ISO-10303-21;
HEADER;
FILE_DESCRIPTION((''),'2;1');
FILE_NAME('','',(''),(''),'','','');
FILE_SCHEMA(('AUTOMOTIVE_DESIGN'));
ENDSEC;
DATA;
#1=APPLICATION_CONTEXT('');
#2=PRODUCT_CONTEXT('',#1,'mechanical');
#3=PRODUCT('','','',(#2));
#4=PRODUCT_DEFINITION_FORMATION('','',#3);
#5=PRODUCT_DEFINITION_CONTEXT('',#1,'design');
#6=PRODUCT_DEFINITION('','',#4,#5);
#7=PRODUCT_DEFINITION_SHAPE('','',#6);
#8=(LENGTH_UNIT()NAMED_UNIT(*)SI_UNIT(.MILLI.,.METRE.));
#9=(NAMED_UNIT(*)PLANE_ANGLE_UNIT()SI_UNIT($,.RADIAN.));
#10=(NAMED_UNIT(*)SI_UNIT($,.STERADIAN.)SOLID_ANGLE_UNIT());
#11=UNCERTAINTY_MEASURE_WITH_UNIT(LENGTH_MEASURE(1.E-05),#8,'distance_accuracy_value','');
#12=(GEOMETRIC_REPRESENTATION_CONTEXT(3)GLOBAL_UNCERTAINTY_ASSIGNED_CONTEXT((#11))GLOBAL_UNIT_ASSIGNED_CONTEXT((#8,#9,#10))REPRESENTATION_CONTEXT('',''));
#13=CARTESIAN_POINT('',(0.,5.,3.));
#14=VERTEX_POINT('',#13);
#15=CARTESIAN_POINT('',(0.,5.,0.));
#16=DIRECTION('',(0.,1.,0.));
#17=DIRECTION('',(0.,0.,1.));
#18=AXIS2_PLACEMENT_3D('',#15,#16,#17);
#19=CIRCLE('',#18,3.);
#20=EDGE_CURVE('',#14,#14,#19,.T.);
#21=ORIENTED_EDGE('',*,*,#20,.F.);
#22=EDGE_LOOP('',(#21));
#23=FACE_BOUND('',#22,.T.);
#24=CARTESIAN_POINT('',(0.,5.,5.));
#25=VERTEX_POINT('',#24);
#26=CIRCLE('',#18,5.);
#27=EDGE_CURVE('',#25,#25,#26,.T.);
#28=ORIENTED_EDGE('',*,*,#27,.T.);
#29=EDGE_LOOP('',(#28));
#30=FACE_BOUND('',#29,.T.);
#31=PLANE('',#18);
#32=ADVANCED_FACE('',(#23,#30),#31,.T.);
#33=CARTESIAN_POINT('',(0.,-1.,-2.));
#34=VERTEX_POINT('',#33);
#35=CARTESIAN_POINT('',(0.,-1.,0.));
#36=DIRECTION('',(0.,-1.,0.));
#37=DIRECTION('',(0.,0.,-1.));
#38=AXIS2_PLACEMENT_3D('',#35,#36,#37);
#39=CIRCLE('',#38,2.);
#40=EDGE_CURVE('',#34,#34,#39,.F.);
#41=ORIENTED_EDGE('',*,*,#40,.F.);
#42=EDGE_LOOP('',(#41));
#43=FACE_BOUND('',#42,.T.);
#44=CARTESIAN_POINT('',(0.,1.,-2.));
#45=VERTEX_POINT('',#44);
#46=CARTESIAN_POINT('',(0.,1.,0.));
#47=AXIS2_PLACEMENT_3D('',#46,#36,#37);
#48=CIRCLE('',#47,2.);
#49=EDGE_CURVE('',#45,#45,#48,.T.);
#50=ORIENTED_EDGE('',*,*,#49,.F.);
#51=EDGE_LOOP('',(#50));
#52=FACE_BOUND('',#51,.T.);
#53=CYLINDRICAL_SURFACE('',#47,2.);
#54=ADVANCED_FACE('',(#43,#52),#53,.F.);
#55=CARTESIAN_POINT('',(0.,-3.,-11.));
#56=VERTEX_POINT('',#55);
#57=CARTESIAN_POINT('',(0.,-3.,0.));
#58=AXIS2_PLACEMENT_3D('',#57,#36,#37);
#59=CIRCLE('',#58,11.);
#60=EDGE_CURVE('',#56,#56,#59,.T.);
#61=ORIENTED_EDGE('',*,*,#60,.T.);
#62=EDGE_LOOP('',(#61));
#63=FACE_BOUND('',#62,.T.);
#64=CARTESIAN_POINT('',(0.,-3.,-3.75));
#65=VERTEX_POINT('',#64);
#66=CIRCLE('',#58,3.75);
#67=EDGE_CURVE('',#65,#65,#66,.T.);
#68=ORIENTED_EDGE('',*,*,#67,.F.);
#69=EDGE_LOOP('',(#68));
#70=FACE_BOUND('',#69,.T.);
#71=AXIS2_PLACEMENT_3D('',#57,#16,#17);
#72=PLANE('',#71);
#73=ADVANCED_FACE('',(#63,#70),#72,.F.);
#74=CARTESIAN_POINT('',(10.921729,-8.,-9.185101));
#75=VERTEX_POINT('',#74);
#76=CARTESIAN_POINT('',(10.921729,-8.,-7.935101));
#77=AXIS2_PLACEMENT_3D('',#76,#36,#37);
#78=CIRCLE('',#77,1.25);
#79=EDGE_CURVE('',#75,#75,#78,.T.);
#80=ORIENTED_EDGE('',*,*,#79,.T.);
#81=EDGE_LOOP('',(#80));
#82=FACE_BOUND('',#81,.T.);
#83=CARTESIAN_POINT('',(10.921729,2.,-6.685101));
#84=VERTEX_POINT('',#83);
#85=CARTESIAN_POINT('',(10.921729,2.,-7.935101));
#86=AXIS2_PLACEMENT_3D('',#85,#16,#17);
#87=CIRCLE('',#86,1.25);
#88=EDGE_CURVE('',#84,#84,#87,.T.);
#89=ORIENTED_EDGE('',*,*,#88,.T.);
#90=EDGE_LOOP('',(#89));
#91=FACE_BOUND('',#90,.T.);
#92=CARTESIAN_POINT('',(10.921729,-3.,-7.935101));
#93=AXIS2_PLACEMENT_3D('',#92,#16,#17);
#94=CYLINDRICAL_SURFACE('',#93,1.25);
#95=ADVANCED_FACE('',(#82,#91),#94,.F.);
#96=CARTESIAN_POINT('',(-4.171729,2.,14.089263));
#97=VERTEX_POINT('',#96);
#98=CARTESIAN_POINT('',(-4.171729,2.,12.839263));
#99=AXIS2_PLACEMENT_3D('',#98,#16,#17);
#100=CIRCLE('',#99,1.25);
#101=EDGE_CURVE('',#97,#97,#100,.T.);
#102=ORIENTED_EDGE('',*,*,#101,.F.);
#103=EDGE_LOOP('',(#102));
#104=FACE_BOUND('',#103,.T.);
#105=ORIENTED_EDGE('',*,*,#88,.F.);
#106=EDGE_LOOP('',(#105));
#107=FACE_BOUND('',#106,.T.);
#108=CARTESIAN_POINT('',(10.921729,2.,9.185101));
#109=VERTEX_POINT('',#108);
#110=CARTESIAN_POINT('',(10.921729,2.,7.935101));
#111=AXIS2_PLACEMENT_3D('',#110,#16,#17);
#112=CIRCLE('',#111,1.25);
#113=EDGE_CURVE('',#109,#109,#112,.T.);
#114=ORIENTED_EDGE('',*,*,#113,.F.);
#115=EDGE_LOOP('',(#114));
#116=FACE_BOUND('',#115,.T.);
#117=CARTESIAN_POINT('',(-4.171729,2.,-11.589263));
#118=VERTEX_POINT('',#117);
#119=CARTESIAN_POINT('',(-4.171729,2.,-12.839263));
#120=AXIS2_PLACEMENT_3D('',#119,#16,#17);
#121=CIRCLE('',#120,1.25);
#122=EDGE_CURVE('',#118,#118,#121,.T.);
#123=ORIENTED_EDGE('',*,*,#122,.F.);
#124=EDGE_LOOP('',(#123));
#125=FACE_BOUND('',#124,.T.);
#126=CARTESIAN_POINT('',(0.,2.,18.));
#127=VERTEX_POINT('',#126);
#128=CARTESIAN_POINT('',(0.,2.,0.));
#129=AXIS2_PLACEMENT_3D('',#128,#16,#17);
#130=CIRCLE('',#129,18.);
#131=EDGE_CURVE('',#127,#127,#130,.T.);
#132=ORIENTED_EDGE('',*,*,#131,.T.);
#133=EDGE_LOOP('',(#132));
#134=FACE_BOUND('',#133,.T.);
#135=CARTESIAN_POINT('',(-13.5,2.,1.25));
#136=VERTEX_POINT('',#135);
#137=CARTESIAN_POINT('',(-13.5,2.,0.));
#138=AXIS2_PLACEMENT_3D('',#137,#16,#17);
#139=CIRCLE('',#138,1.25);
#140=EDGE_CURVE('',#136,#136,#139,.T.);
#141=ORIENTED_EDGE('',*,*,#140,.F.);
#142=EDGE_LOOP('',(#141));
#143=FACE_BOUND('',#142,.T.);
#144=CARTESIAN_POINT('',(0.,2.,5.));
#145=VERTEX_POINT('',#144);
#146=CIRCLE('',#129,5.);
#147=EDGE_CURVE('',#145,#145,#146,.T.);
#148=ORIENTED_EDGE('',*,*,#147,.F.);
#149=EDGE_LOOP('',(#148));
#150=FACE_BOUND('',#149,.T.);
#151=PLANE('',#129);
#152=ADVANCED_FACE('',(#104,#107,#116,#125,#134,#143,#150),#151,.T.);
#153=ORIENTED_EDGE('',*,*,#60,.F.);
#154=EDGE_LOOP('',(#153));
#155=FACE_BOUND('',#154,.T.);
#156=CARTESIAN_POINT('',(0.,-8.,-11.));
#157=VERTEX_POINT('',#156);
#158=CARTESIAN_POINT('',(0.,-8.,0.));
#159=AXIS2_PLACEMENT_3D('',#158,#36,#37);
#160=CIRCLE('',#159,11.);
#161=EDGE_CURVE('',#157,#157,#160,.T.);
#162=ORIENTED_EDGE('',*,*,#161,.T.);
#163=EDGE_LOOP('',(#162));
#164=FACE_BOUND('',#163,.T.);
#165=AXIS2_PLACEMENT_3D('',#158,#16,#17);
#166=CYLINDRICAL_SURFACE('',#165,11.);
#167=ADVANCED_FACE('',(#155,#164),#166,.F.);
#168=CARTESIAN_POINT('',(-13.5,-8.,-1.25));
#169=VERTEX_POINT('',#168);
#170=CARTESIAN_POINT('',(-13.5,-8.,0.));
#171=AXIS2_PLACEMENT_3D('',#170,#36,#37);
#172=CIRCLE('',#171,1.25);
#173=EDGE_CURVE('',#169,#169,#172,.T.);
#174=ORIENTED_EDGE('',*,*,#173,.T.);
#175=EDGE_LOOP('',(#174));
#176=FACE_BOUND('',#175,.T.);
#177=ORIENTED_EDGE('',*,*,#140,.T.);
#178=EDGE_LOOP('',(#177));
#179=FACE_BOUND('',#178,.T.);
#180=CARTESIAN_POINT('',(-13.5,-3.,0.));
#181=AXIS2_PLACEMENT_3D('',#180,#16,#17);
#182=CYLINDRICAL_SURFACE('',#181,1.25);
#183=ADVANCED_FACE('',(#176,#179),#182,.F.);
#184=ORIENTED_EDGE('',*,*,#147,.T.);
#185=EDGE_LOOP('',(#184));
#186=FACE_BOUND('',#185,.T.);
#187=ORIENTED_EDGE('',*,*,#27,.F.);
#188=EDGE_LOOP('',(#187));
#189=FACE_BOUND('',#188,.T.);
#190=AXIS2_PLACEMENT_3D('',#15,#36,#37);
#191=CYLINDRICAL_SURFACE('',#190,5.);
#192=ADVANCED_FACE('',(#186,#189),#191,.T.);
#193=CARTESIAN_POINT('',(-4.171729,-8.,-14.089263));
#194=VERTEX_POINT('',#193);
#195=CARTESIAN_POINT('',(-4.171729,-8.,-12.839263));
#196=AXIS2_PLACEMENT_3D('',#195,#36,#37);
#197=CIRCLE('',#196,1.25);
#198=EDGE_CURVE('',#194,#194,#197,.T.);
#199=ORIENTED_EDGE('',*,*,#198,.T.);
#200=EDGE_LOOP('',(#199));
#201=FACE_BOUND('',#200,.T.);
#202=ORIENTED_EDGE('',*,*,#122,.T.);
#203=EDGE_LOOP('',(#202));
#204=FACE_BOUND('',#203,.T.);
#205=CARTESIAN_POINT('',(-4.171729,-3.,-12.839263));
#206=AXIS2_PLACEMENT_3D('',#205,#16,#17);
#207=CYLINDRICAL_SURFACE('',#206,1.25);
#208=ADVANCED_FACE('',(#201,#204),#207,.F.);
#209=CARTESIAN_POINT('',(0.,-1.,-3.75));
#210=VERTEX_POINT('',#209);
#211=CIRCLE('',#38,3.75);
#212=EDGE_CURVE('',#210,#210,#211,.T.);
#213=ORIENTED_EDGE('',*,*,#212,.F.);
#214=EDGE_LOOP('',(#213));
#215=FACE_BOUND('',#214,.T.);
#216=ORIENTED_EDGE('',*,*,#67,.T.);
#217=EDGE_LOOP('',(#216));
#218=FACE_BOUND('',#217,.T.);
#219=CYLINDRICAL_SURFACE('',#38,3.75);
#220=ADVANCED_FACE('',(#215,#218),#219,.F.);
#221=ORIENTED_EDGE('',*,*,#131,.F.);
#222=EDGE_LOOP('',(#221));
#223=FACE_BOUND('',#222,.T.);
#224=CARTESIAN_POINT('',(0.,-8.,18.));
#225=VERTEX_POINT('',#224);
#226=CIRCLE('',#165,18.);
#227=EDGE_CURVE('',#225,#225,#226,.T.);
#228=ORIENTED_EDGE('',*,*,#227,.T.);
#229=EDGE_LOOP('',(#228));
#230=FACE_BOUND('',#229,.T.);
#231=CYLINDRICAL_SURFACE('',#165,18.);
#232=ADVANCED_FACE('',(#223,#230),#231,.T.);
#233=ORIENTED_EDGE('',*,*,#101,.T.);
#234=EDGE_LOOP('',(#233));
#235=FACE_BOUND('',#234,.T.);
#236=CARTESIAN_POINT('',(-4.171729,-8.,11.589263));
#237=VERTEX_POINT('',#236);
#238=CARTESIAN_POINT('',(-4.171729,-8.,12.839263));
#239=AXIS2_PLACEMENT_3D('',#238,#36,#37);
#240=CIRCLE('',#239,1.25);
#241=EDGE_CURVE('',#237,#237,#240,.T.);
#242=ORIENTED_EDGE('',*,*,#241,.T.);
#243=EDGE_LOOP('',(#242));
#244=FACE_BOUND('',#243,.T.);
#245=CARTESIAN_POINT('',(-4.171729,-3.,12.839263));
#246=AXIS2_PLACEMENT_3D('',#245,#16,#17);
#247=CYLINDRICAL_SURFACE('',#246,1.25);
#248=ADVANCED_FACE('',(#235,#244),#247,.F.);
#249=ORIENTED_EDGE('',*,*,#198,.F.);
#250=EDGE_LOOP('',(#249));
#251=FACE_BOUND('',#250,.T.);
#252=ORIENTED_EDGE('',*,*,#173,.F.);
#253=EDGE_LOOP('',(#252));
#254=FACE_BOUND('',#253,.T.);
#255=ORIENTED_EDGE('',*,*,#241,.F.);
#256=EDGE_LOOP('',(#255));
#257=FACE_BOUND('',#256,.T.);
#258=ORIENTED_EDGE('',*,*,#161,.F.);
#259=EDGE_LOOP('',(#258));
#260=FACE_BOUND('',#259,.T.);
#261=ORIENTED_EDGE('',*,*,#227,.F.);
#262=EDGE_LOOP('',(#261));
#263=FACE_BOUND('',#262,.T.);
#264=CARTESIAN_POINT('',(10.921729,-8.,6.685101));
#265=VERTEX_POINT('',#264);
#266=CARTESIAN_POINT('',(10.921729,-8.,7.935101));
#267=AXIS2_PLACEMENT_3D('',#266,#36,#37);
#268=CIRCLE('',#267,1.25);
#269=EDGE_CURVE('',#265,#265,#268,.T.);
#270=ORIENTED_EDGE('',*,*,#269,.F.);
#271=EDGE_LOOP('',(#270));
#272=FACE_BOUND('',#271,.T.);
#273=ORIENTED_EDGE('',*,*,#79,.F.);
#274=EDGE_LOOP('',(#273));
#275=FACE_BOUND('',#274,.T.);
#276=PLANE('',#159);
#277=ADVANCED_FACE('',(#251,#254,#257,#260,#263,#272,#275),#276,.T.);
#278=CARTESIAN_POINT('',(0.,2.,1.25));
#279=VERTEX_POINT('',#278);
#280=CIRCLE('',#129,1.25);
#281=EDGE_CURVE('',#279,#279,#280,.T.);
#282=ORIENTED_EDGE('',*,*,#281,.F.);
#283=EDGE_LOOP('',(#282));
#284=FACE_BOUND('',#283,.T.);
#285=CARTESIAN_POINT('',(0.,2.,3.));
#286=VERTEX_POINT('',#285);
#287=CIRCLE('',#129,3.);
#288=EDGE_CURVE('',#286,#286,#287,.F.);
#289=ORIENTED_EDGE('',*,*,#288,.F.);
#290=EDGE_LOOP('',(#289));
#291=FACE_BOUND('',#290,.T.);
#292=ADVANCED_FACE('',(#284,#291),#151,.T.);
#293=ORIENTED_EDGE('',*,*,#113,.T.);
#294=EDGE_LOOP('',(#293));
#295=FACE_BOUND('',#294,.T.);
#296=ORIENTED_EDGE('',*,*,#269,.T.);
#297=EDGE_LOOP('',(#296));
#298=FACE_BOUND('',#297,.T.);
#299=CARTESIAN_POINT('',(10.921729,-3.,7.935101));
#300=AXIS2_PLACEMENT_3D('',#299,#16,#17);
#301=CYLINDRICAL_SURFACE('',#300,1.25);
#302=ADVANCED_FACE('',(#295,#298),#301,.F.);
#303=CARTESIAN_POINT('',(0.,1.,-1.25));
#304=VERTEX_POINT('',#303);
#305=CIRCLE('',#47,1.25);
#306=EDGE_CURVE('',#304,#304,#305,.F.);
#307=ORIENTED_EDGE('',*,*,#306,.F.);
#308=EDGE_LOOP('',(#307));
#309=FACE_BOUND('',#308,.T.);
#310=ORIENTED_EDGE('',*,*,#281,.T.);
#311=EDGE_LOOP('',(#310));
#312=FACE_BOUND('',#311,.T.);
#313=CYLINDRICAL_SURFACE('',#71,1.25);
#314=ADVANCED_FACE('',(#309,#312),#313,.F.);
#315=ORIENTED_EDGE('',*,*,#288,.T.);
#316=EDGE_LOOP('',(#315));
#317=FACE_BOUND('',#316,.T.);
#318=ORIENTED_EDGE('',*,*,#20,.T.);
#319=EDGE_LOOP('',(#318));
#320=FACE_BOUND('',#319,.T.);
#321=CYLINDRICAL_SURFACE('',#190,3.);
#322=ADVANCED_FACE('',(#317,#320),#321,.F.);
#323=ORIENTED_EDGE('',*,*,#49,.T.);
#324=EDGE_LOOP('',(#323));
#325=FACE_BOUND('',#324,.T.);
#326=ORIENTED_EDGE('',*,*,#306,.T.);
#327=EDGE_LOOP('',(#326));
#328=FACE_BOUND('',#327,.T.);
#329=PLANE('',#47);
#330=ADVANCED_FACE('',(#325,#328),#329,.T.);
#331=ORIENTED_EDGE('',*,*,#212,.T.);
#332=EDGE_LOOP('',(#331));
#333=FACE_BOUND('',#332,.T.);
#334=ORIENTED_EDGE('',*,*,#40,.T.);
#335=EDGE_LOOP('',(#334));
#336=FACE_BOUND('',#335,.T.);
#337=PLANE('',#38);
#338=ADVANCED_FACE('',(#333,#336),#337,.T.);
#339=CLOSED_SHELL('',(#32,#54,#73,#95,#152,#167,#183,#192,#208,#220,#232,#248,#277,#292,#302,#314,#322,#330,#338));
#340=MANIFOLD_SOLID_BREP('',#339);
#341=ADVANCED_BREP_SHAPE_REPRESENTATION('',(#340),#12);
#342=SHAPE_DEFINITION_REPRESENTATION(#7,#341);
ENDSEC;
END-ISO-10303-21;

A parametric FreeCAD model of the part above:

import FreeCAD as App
import Part
import Sketcher

V = App.Vector
Q = App.Units.Quantity

doc = App.newDocument("Part")
params = doc.addObject("Spreadsheet::Sheet", "Params")
for row, (alias, value) in enumerate([
    ("sketch1_diameter", "32 mm"),
    ("sketch1_diameter2", "2.5 mm"),
    ("pad1_length", "2 mm"),
    ("pad1_length2", "3 mm"),
    ("sketch2_diameter", "10 mm"),
    ("sketch2_diameter2", "6 mm"),
    ("pad2_length", "3 mm"),
    ("sketch3_diameter", "5.5 mm"),
    ("pocket1_length", "1 mm"),
    ("sketch4_diameter", "32 mm"),
    ("sketch4_diameter2", "22 mm"),
    ("sketch4_diameter3", "2.5 mm"),
    ("pad3_length", "5 mm"),
    ("sketch5_diameter", "36 mm"),
    ("sketch5_diameter2", "32 mm"),
    ("pad4_length", "10 mm"),
    ("sketch6_diameter", "4 mm"),
    ("pocket2_length", "3 mm"),
    ("sketch7_diameter", "7.5 mm"),
    ("pocket3_length", "2 mm"),
], start=1):
    params.set(f"A{row}", alias)
    params.set(f"B{row}", "=" + value)
    params.setAlias(f"B{row}", alias)

body = doc.addObject("PartDesign::Body", "Body")

sketch1 = doc.addObject("Sketcher::SketchObject", "Sketch")
body.addObject(sketch1)
sketch1.AttachmentSupport = (doc.XZ_Plane, [""])
sketch1.MapMode = "FlatFace"
sketch1.addGeometry([
    Part.Circle(V(0, 0, 0), V(0, 0, 1), 16),
    Part.Circle(V(-4.171729, -12.839263, 0), V(0, 0, 1), 1.25),
    Part.Circle(V(-13.5, 0, 0), V(0, 0, 1), 1.25),
    Part.Circle(V(-4.171729, 12.839263, 0), V(0, 0, 1), 1.25),
    Part.Circle(V(0, 0, 0), V(0, 0, 1), 1.25),
    Part.Circle(V(10.921729, -7.935101, 0), V(0, 0, 1), 1.25),
    Part.Circle(V(10.921729, 7.935101, 0), V(0, 0, 1), 1.25),
], False)
sketch1.addConstraint([
    Sketcher.Constraint("Coincident", 0, 3, -1, 1),
    Sketcher.Constraint("Coincident", 4, 3, -1, 1),
    Sketcher.Constraint("Equal", 1, 2),
    Sketcher.Constraint("Equal", 2, 3),
    Sketcher.Constraint("Equal", 3, 4),
    Sketcher.Constraint("Equal", 4, 5),
    Sketcher.Constraint("Equal", 5, 6),
    Sketcher.Constraint("Symmetric", 1, 3, 3, 3, -1),
    Sketcher.Constraint("Symmetric", 5, 3, 6, 3, -1),
    Sketcher.Constraint("PointOnObject", 2, 3, -1),
    Sketcher.Constraint("Diameter", 0, Q("32 mm")),
    Sketcher.Constraint("Diameter", 1, Q("2.5 mm")),
    Sketcher.Constraint("DistanceX", 2, 3, -1, 1, Q("13.5 mm")),
    Sketcher.Constraint("DistanceY", 5, 3, -1, 1, Q("7.935101 mm")),
    Sketcher.Constraint("DistanceX", 1, 3, -1, 1, Q("4.171729 mm")),
    Sketcher.Constraint("DistanceX", -1, 1, 5, 3, Q("10.921729 mm")),
    Sketcher.Constraint("DistanceY", 1, 3, -1, 1, Q("12.839263 mm")),
])
sketch1.setExpression("Constraints[10]", "Params.sketch1_diameter")
sketch1.setExpression("Constraints[11]", "Params.sketch1_diameter2")
pad1 = doc.addObject("PartDesign::Pad", "Pad")
body.addObject(pad1)
pad1.Profile = sketch1
pad1.Type = "TwoLengths"
pad1.setExpression("Length", "Params.pad1_length")
pad1.setExpression("Length2", "Params.pad1_length2")
pad1.Reversed = True

sketch2 = doc.addObject("Sketcher::SketchObject", "Sketch001")
body.addObject(sketch2)
sketch2.AttachmentSupport = (doc.XZ_Plane, [""])
sketch2.MapMode = "FlatFace"
sketch2.AttachmentOffset = App.Placement(V(0, 0, -2), App.Rotation())
sketch2.addGeometry([
    Part.Circle(V(0, 0, 0), V(0, 0, 1), 5),
    Part.Circle(V(0, 0, 0), V(0, 0, 1), 3),
], False)
sketch2.addConstraint([
    Sketcher.Constraint("Coincident", 0, 3, -1, 1),
    Sketcher.Constraint("Coincident", 1, 3, -1, 1),
    Sketcher.Constraint("Diameter", 0, Q("10 mm")),
    Sketcher.Constraint("Diameter", 1, Q("6 mm")),
])
sketch2.setExpression("Constraints[2]", "Params.sketch2_diameter")
sketch2.setExpression("Constraints[3]", "Params.sketch2_diameter2")
pad2 = doc.addObject("PartDesign::Pad", "Pad001")
body.addObject(pad2)
pad2.Profile = sketch2
pad2.setExpression("Length", "Params.pad2_length")
pad2.Reversed = True

sketch3 = doc.addObject("Sketcher::SketchObject", "Sketch002")
body.addObject(sketch3)
sketch3.AttachmentSupport = (doc.XZ_Plane, [""])
sketch3.MapMode = "FlatFace"
sketch3.AttachmentOffset = App.Placement(V(0, 0, 3), App.Rotation())
sketch3.addGeometry(Part.Circle(V(0, 0, 0), V(0, 0, 1), 2.75), False)
sketch3.addConstraint([
    Sketcher.Constraint("Coincident", 0, 3, -1, 1),
    Sketcher.Constraint("Diameter", 0, Q("5.5 mm")),
])
sketch3.setExpression("Constraints[1]", "Params.sketch3_diameter")
pocket1 = doc.addObject("PartDesign::Pocket", "Pocket")
body.addObject(pocket1)
pocket1.Profile = sketch3
pocket1.setExpression("Length", "Params.pocket1_length")

sketch4 = doc.addObject("Sketcher::SketchObject", "Sketch003")
body.addObject(sketch4)
sketch4.AttachmentSupport = (doc.XZ_Plane, [""])
sketch4.MapMode = "FlatFace"
sketch4.AttachmentOffset = App.Placement(V(0, 0, 3), App.Rotation())
sketch4.addGeometry([
    Part.Circle(V(0, 0, 0), V(0, 0, 1), 16),
    Part.Circle(V(10.921729, -7.935101, 0), V(0, 0, 1), 1.25),
    Part.Circle(V(10.921729, 7.935101, 0), V(0, 0, 1), 1.25),
    Part.Circle(V(0, 0, 0), V(0, 0, 1), 11),
    Part.Circle(V(-4.171729, -12.839263, 0), V(0, 0, 1), 1.25),
    Part.Circle(V(-13.5, 0, 0), V(0, 0, 1), 1.25),
    Part.Circle(V(-4.171729, 12.839263, 0), V(0, 0, 1), 1.25),
], False)
sketch4.addConstraint([
    Sketcher.Constraint("Coincident", 0, 3, -1, 1),
    Sketcher.Constraint("Coincident", 3, 3, -1, 1),
    Sketcher.Constraint("Equal", 1, 2),
    Sketcher.Constraint("Equal", 2, 4),
    Sketcher.Constraint("Equal", 4, 5),
    Sketcher.Constraint("Equal", 5, 6),
    Sketcher.Constraint("Symmetric", 1, 3, 2, 3, -1),
    Sketcher.Constraint("Symmetric", 4, 3, 6, 3, -1),
    Sketcher.Constraint("PointOnObject", 5, 3, -1),
    Sketcher.Constraint("Diameter", 0, Q("32 mm")),
    Sketcher.Constraint("Diameter", 3, Q("22 mm")),
    Sketcher.Constraint("Diameter", 1, Q("2.5 mm")),
    Sketcher.Constraint("DistanceX", 5, 3, -1, 1, Q("13.5 mm")),
    Sketcher.Constraint("DistanceY", 1, 3, -1, 1, Q("7.935101 mm")),
    Sketcher.Constraint("DistanceX", -1, 1, 1, 3, Q("10.921729 mm")),
    Sketcher.Constraint("DistanceX", 4, 3, -1, 1, Q("4.171729 mm")),
    Sketcher.Constraint("DistanceY", 4, 3, -1, 1, Q("12.839263 mm")),
])
sketch4.setExpression("Constraints[9]", "Params.sketch4_diameter")
sketch4.setExpression("Constraints[10]", "Params.sketch4_diameter2")
sketch4.setExpression("Constraints[11]", "Params.sketch4_diameter3")
pad3 = doc.addObject("PartDesign::Pad", "Pad002")
body.addObject(pad3)
pad3.Profile = sketch4
pad3.setExpression("Length", "Params.pad3_length")

sketch5 = doc.addObject("Sketcher::SketchObject", "Sketch004")
body.addObject(sketch5)
sketch5.AttachmentSupport = (doc.XZ_Plane, [""])
sketch5.MapMode = "FlatFace"
sketch5.AttachmentOffset = App.Placement(V(0, 0, -2), App.Rotation())
sketch5.addGeometry([
    Part.Circle(V(0, 0, 0), V(0, 0, 1), 18),
    Part.Circle(V(0, 0, 0), V(0, 0, 1), 16),
], False)
sketch5.addConstraint([
    Sketcher.Constraint("Coincident", 0, 3, -1, 1),
    Sketcher.Constraint("Coincident", 1, 3, -1, 1),
    Sketcher.Constraint("Diameter", 0, Q("36 mm")),
    Sketcher.Constraint("Diameter", 1, Q("32 mm")),
])
sketch5.setExpression("Constraints[2]", "Params.sketch5_diameter")
sketch5.setExpression("Constraints[3]", "Params.sketch5_diameter2")
pad4 = doc.addObject("PartDesign::Pad", "Pad003")
body.addObject(pad4)
pad4.Profile = sketch5
pad4.setExpression("Length", "Params.pad4_length")

sketch6 = doc.addObject("Sketcher::SketchObject", "Sketch005")
body.addObject(sketch6)
sketch6.AttachmentSupport = (doc.XZ_Plane, [""])
sketch6.MapMode = "FlatFace"
sketch6.AttachmentOffset = App.Placement(V(0, 0, 2), App.Rotation())
sketch6.addGeometry(Part.Circle(V(0, 0, 0), V(0, 0, 1), 2), False)
sketch6.addConstraint([
    Sketcher.Constraint("Coincident", 0, 3, -1, 1),
    Sketcher.Constraint("Diameter", 0, Q("4 mm")),
])
sketch6.setExpression("Constraints[1]", "Params.sketch6_diameter")
pocket2 = doc.addObject("PartDesign::Pocket", "Pocket001")
body.addObject(pocket2)
pocket2.Profile = sketch6
pocket2.setExpression("Length", "Params.pocket2_length")

sketch7 = doc.addObject("Sketcher::SketchObject", "Sketch006")
body.addObject(sketch7)
sketch7.AttachmentSupport = (doc.XZ_Plane, [""])
sketch7.MapMode = "FlatFace"
sketch7.AttachmentOffset = App.Placement(V(0, 0, 3), App.Rotation())
sketch7.addGeometry(Part.Circle(V(0, 0, 0), V(0, 0, 1), 3.75), False)
sketch7.addConstraint([
    Sketcher.Constraint("Coincident", 0, 3, -1, 1),
    Sketcher.Constraint("Diameter", 0, Q("7.5 mm")),
])
sketch7.setExpression("Constraints[1]", "Params.sketch7_diameter")
pocket3 = doc.addObject("PartDesign::Pocket", "Pocket002")
body.addObject(pocket3)
pocket3.Profile = sketch7
pocket3.setExpression("Length", "Params.pocket3_length")

doc.recompute()
